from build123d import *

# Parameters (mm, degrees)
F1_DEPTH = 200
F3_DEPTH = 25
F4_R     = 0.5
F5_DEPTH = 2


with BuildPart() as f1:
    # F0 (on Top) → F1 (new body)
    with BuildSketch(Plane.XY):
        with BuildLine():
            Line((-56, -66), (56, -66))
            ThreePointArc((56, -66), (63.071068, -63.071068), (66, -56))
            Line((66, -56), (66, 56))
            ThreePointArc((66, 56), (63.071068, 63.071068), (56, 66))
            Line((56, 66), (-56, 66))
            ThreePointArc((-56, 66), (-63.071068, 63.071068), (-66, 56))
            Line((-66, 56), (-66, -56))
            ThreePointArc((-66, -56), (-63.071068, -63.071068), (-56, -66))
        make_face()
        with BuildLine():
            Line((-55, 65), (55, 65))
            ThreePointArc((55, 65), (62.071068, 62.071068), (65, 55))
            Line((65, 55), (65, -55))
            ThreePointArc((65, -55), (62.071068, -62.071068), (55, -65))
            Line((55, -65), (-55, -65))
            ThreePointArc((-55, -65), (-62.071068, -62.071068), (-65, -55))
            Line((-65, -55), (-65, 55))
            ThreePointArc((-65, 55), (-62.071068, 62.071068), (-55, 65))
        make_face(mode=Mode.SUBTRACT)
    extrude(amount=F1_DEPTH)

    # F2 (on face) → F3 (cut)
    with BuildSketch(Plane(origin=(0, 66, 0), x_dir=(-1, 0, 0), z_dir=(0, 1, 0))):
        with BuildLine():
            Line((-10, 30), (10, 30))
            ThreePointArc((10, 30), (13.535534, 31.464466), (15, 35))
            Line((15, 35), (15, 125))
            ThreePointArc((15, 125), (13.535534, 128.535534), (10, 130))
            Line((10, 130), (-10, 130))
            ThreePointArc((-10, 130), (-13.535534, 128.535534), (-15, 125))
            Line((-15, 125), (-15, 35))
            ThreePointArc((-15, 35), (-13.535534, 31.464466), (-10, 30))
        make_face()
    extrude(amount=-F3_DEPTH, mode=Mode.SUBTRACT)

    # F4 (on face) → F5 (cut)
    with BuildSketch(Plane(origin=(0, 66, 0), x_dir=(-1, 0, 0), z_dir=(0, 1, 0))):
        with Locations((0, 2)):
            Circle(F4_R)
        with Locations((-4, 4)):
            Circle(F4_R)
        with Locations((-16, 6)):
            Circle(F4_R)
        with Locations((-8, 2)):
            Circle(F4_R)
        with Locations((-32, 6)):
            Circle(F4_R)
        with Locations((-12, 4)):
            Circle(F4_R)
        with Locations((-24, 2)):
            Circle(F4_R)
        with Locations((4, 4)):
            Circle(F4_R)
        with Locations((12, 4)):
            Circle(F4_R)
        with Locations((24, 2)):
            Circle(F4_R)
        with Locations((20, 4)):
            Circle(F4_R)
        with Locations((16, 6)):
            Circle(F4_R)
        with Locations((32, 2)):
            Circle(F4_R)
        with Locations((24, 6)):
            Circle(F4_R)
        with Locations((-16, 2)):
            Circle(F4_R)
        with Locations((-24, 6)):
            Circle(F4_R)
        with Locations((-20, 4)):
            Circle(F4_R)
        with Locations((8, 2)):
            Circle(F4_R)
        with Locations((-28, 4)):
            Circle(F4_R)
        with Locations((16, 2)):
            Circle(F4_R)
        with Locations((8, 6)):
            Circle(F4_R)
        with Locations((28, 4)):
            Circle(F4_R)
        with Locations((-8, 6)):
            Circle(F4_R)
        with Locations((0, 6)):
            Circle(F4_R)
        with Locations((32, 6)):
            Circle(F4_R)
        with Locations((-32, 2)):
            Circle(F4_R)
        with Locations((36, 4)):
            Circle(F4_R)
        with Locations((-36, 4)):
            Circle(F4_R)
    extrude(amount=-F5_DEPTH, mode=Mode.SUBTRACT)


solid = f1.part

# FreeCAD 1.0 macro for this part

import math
import FreeCAD as App
import Part
import Sketcher
from FreeCAD import Vector

doc = App.newDocument("Part")
body = doc.addObject("PartDesign::Body", "Body")

# Sketch on XY plane
sketch1 = body.newObject("Sketcher::SketchObject", "Sketch")
sketch1.AttachmentSupport = (doc.getObject("XY_Plane"), [""])
sketch1.MapMode = "FlatFace"
sketch1.addGeometry([
    Part.LineSegment(Vector(-56, -66, 0), Vector(56, -66, 0)),  # 0
    Part.ArcOfCircle(Part.Circle(Vector(56, -56, 0), Vector(0, 0, 1), 10), math.radians(-90), math.radians(0)),  # 1
    Part.LineSegment(Vector(66, -56, 0), Vector(66, 56, 0)),  # 2
    Part.ArcOfCircle(Part.Circle(Vector(56, 56, 0), Vector(0, 0, 1), 10), math.radians(0), math.radians(90)),  # 3
    Part.LineSegment(Vector(56, 66, 0), Vector(-56, 66, 0)),  # 4
    Part.ArcOfCircle(Part.Circle(Vector(-56, 56, 0), Vector(0, 0, 1), 10), math.radians(90), math.radians(180)),  # 5
    Part.LineSegment(Vector(-66, 56, 0), Vector(-66, -56, 0)),  # 6
    Part.ArcOfCircle(Part.Circle(Vector(-56, -56, 0), Vector(0, 0, 1), 10), math.radians(180), math.radians(270)),  # 7
    Part.ArcOfCircle(Part.Circle(Vector(-55, 55, 0), Vector(0, 0, 1), 10), math.radians(90), math.radians(180)),  # 8
    Part.LineSegment(Vector(-55, 65, 0), Vector(55, 65, 0)),  # 9
    Part.ArcOfCircle(Part.Circle(Vector(55, 55, 0), Vector(0, 0, 1), 10), math.radians(0), math.radians(90)),  # 10
    Part.LineSegment(Vector(65, 55, 0), Vector(65, -55, 0)),  # 11
    Part.ArcOfCircle(Part.Circle(Vector(55, -55, 0), Vector(0, 0, 1), 10), math.radians(-90), math.radians(0)),  # 12
    Part.LineSegment(Vector(55, -65, 0), Vector(-55, -65, 0)),  # 13
    Part.ArcOfCircle(Part.Circle(Vector(-55, -55, 0), Vector(0, 0, 1), 10), math.radians(180), math.radians(270)),  # 14
    Part.LineSegment(Vector(-65, -55, 0), Vector(-65, 55, 0)),  # 15
], False)
sketch1.addConstraint([
    Sketcher.Constraint("Tangent", 0, 2, 1, 1),
    Sketcher.Constraint("Tangent", 1, 2, 2, 1),
    Sketcher.Constraint("Tangent", 2, 2, 3, 1),
    Sketcher.Constraint("Tangent", 3, 2, 4, 1),
    Sketcher.Constraint("Tangent", 4, 2, 5, 1),
    Sketcher.Constraint("Tangent", 5, 2, 6, 1),
    Sketcher.Constraint("Tangent", 6, 2, 7, 1),
    Sketcher.Constraint("Tangent", 7, 2, 0, 1),
    Sketcher.Constraint("Tangent", 8, 1, 9, 1),
    Sketcher.Constraint("Tangent", 9, 2, 10, 2),
    Sketcher.Constraint("Tangent", 10, 1, 11, 1),
    Sketcher.Constraint("Tangent", 11, 2, 12, 2),
    Sketcher.Constraint("Tangent", 12, 1, 13, 1),
    Sketcher.Constraint("Tangent", 13, 2, 14, 2),
    Sketcher.Constraint("Tangent", 14, 1, 15, 1),
    Sketcher.Constraint("Tangent", 15, 2, 8, 2),
    Sketcher.Constraint("Horizontal", 0),
    Sketcher.Constraint("Vertical", 2),
    Sketcher.Constraint("Horizontal", 4),
    Sketcher.Constraint("Vertical", 6),
    Sketcher.Constraint("Horizontal", 9),
    Sketcher.Constraint("Vertical", 11),
    Sketcher.Constraint("Horizontal", 13),
    Sketcher.Constraint("Vertical", 15),
    Sketcher.Constraint("Equal", 1, 3),
    Sketcher.Constraint("Equal", 3, 5),
    Sketcher.Constraint("Equal", 5, 7),
    Sketcher.Constraint("Equal", 7, 8),
    Sketcher.Constraint("Equal", 8, 10),
    Sketcher.Constraint("Equal", 10, 12),
    Sketcher.Constraint("Equal", 12, 14),
    Sketcher.Constraint("Symmetric", 1, 3, 5, 3, -1, 1),
    Sketcher.Constraint("Symmetric", 8, 3, 12, 3, -1, 1),
    Sketcher.Constraint("Equal", 4, 2),
    Sketcher.Constraint("Equal", 13, 11),
    Sketcher.Constraint("Radius", 1, 9.999999),
    Sketcher.Constraint("DistanceX", 0, 1, 0, 2, 112.0),
    Sketcher.Constraint("DistanceX", 9, 1, 9, 2, 110.0),
])
pad1 = body.newObject("PartDesign::Pad", "Pad")
pad1.Profile = sketch1
pad1.Length = 200

# Sketch on XZ plane
sketch2 = body.newObject("Sketcher::SketchObject", "Sketch001")
sketch2.AttachmentSupport = (doc.getObject("XZ_Plane"), [""])
sketch2.MapMode = "FlatFace"
sketch2.AttachmentOffset = App.Placement(Vector(0, 0, -66), App.Rotation())
sketch2.addGeometry([
    Part.LineSegment(Vector(10, 30, 0), Vector(-10, 30, 0)),  # 0
    Part.ArcOfCircle(Part.Circle(Vector(-10, 35, 0), Vector(0, 0, 1), 5), math.radians(180), math.radians(270)),  # 1
    Part.LineSegment(Vector(-15, 35, 0), Vector(-15, 125, 0)),  # 2
    Part.ArcOfCircle(Part.Circle(Vector(-10, 125, 0), Vector(0, 0, 1), 5), math.radians(90), math.radians(180)),  # 3
    Part.LineSegment(Vector(-10, 130, 0), Vector(10, 130, 0)),  # 4
    Part.ArcOfCircle(Part.Circle(Vector(10, 125, 0), Vector(0, 0, 1), 5), math.radians(0), math.radians(90)),  # 5
    Part.LineSegment(Vector(15, 125, 0), Vector(15, 35, 0)),  # 6
    Part.ArcOfCircle(Part.Circle(Vector(10, 35, 0), Vector(0, 0, 1), 5), math.radians(-90), math.radians(0)),  # 7
], False)
sketch2.addConstraint([
    Sketcher.Constraint("Tangent", 0, 2, 1, 2),
    Sketcher.Constraint("Tangent", 1, 1, 2, 1),
    Sketcher.Constraint("Tangent", 2, 2, 3, 2),
    Sketcher.Constraint("Tangent", 3, 1, 4, 1),
    Sketcher.Constraint("Tangent", 4, 2, 5, 2),
    Sketcher.Constraint("Tangent", 5, 1, 6, 1),
    Sketcher.Constraint("Tangent", 6, 2, 7, 2),
    Sketcher.Constraint("Tangent", 7, 1, 0, 1),
    Sketcher.Constraint("Horizontal", 0),
    Sketcher.Constraint("Vertical", 2),
    Sketcher.Constraint("Horizontal", 4),
    Sketcher.Constraint("Vertical", 6),
    Sketcher.Constraint("Equal", 1, 3),
    Sketcher.Constraint("Equal", 3, 5),
    Sketcher.Constraint("Equal", 5, 7),
    Sketcher.Constraint("Radius", 1, 5.0),
    Sketcher.Constraint("DistanceX", 0, 2, 0, 1, 20.0),
    Sketcher.Constraint("DistanceY", 2, 1, 2, 2, 90.0),
    Sketcher.Constraint("DistanceX", 1, 3, -1, 1, 10.0),
    Sketcher.Constraint("DistanceY", -1, 1, 1, 3, 35.0),
])
pocket1 = body.newObject("PartDesign::Pocket", "Pocket")
pocket1.Profile = sketch2
pocket1.Length = 25
pocket1.Reversed = True

# Sketch on XZ plane
sketch3 = body.newObject("Sketcher::SketchObject", "Sketch002")
sketch3.AttachmentSupport = (doc.getObject("XZ_Plane"), [""])
sketch3.MapMode = "FlatFace"
sketch3.AttachmentOffset = App.Placement(Vector(0, 0, -66), App.Rotation())
sketch3.addGeometry([
    Part.Circle(Vector(0, 2, 0), Vector(0, 0, 1), 0.5),  # 0
    Part.Circle(Vector(4, 4, 0), Vector(0, 0, 1), 0.5),  # 1
    Part.Circle(Vector(16, 6, 0), Vector(0, 0, 1), 0.5),  # 2
    Part.Circle(Vector(8, 2, 0), Vector(0, 0, 1), 0.5),  # 3
    Part.Circle(Vector(32, 6, 0), Vector(0, 0, 1), 0.5),  # 4
    Part.Circle(Vector(12, 4, 0), Vector(0, 0, 1), 0.5),  # 5
    Part.Circle(Vector(24, 2, 0), Vector(0, 0, 1), 0.5),  # 6
    Part.Circle(Vector(-4, 4, 0), Vector(0, 0, 1), 0.5),  # 7
    Part.Circle(Vector(-12, 4, 0), Vector(0, 0, 1), 0.5),  # 8
    Part.Circle(Vector(-24, 2, 0), Vector(0, 0, 1), 0.5),  # 9
    Part.Circle(Vector(-20, 4, 0), Vector(0, 0, 1), 0.5),  # 10
    Part.Circle(Vector(-16, 6, 0), Vector(0, 0, 1), 0.5),  # 11
    Part.Circle(Vector(-32, 2, 0), Vector(0, 0, 1), 0.5),  # 12
    Part.Circle(Vector(-24, 6, 0), Vector(0, 0, 1), 0.5),  # 13
    Part.Circle(Vector(16, 2, 0), Vector(0, 0, 1), 0.5),  # 14
    Part.Circle(Vector(24, 6, 0), Vector(0, 0, 1), 0.5),  # 15
    Part.Circle(Vector(20, 4, 0), Vector(0, 0, 1), 0.5),  # 16
    Part.Circle(Vector(-8, 2, 0), Vector(0, 0, 1), 0.5),  # 17
    Part.Circle(Vector(28, 4, 0), Vector(0, 0, 1), 0.5),  # 18
    Part.Circle(Vector(-16, 2, 0), Vector(0, 0, 1), 0.5),  # 19
    Part.Circle(Vector(-8, 6, 0), Vector(0, 0, 1), 0.5),  # 20
    Part.Circle(Vector(-28, 4, 0), Vector(0, 0, 1), 0.5),  # 21
    Part.Circle(Vector(8, 6, 0), Vector(0, 0, 1), 0.5),  # 22
    Part.Circle(Vector(0, 6, 0), Vector(0, 0, 1), 0.5),  # 23
    Part.Circle(Vector(-32, 6, 0), Vector(0, 0, 1), 0.5),  # 24
    Part.Circle(Vector(32, 2, 0), Vector(0, 0, 1), 0.5),  # 25
    Part.Circle(Vector(-36, 4, 0), Vector(0, 0, 1), 0.5),  # 26
    Part.Circle(Vector(36, 4, 0), Vector(0, 0, 1), 0.5),  # 27
], False)
sketch3.addConstraint([
    Sketcher.Constraint("Equal", 0, 1),
    Sketcher.Constraint("Equal", 1, 2),
    Sketcher.Constraint("Equal", 2, 3),
    Sketcher.Constraint("Equal", 3, 4),
    Sketcher.Constraint("Equal", 4, 5),
    Sketcher.Constraint("Equal", 5, 6),
    Sketcher.Constraint("Equal", 6, 7),
    Sketcher.Constraint("Equal", 7, 8),
    Sketcher.Constraint("Equal", 8, 9),
    Sketcher.Constraint("Equal", 9, 10),
    Sketcher.Constraint("Equal", 10, 11),
    Sketcher.Constraint("Equal", 11, 12),
    Sketcher.Constraint("Equal", 12, 13),
    Sketcher.Constraint("Equal", 13, 14),
    Sketcher.Constraint("Equal", 14, 15),
    Sketcher.Constraint("Equal", 15, 16),
    Sketcher.Constraint("Equal", 16, 17),
    Sketcher.Constraint("Equal", 17, 18),
    Sketcher.Constraint("Equal", 18, 19),
    Sketcher.Constraint("Equal", 19, 20),
    Sketcher.Constraint("Equal", 20, 21),
    Sketcher.Constraint("Equal", 21, 22),
    Sketcher.Constraint("Equal", 22, 23),
    Sketcher.Constraint("Equal", 23, 24),
    Sketcher.Constraint("Equal", 24, 25),
    Sketcher.Constraint("Equal", 25, 26),
    Sketcher.Constraint("Equal", 26, 27),
    Sketcher.Constraint("Symmetric", 1, 3, 7, 3, -2),
    Sketcher.Constraint("Symmetric", 5, 3, 8, 3, -2),
    Sketcher.Constraint("Symmetric", 6, 3, 9, 3, -2),
    Sketcher.Constraint("Symmetric", 2, 3, 11, 3, -2),
    Sketcher.Constraint("Symmetric", 13, 3, 15, 3, -2),
    Sketcher.Constraint("Symmetric", 10, 3, 16, 3, -2),
    Sketcher.Constraint("Symmetric", 3, 3, 17, 3, -2),
    Sketcher.Constraint("Symmetric", 14, 3, 19, 3, -2),
    Sketcher.Constraint("Symmetric", 18, 3, 21, 3, -2),
    Sketcher.Constraint("Symmetric", 20, 3, 22, 3, -2),
    Sketcher.Constraint("Symmetric", 4, 3, 24, 3, -2),
    Sketcher.Constraint("Symmetric", 12, 3, 25, 3, -2),
    Sketcher.Constraint("Symmetric", 26, 3, 27, 3, -2),
    Sketcher.Constraint("PointOnObject", 0, 3, -2),
    Sketcher.Constraint("PointOnObject", 23, 3, -2),
    Sketcher.Constraint("Horizontal", 0, 3, 3, 3),
    Sketcher.Constraint("Horizontal", 2, 3, 4, 3),
    Sketcher.Constraint("Horizontal", 1, 3, 5, 3),
    Sketcher.Constraint("Horizontal", 3, 3, 6, 3),
    Sketcher.Constraint("Horizontal", 8, 3, 10, 3),
    Sketcher.Constraint("Horizontal", 9, 3, 12, 3),
    Sketcher.Constraint("Horizontal", 11, 3, 13, 3),
    Sketcher.Constraint("Horizontal", 12, 3, 14, 3),
    Sketcher.Constraint("Horizontal", 16, 3, 18, 3),
    Sketcher.Constraint("Horizontal", 15, 3, 20, 3),
    Sketcher.Constraint("Horizontal", 22, 3, 23, 3),
    Sketcher.Constraint("Horizontal", 21, 3, 26, 3),
    Sketcher.Constraint("Vertical", 9, 3, 13, 3),
    Sketcher.Constraint("Vertical", 2, 3, 14, 3),
    Sketcher.Constraint("Vertical", 17, 3, 20, 3),
    Sketcher.Constraint("Vertical", 12, 3, 24, 3),
    Sketcher.Constraint("Diameter", 0, 1.0),
    Sketcher.Constraint("DistanceY", -1, 1, 0, 3, 2.0),
    Sketcher.Constraint("DistanceX", -1, 1, 1, 3, 4.0),
    Sketcher.Constraint("DistanceY", -1, 1, 1, 3, 4.0),
    Sketcher.Constraint("DistanceX", -1, 1, 2, 3, 16.0),
    Sketcher.Constraint("DistanceY", -1, 1, 2, 3, 6.0),
    Sketcher.Constraint("DistanceX", -1, 1, 3, 3, 8.0),
    Sketcher.Constraint("DistanceX", -1, 1, 4, 3, 32.0),
    Sketcher.Constraint("DistanceX", -1, 1, 5, 3, 12.0),
    Sketcher.Constraint("DistanceX", -1, 1, 6, 3, 24.0),
    Sketcher.Constraint("DistanceX", 10, 3, -1, 1, 20.0),
    Sketcher.Constraint("DistanceX", -1, 1, 18, 3, 28.0),
    Sketcher.Constraint("DistanceX", 26, 3, -1, 1, 36.0),
])
pocket2 = body.newObject("PartDesign::Pocket", "Pocket001")
pocket2.Profile = sketch3
pocket2.Length = 2
pocket2.Reversed = True

doc.recompute()
